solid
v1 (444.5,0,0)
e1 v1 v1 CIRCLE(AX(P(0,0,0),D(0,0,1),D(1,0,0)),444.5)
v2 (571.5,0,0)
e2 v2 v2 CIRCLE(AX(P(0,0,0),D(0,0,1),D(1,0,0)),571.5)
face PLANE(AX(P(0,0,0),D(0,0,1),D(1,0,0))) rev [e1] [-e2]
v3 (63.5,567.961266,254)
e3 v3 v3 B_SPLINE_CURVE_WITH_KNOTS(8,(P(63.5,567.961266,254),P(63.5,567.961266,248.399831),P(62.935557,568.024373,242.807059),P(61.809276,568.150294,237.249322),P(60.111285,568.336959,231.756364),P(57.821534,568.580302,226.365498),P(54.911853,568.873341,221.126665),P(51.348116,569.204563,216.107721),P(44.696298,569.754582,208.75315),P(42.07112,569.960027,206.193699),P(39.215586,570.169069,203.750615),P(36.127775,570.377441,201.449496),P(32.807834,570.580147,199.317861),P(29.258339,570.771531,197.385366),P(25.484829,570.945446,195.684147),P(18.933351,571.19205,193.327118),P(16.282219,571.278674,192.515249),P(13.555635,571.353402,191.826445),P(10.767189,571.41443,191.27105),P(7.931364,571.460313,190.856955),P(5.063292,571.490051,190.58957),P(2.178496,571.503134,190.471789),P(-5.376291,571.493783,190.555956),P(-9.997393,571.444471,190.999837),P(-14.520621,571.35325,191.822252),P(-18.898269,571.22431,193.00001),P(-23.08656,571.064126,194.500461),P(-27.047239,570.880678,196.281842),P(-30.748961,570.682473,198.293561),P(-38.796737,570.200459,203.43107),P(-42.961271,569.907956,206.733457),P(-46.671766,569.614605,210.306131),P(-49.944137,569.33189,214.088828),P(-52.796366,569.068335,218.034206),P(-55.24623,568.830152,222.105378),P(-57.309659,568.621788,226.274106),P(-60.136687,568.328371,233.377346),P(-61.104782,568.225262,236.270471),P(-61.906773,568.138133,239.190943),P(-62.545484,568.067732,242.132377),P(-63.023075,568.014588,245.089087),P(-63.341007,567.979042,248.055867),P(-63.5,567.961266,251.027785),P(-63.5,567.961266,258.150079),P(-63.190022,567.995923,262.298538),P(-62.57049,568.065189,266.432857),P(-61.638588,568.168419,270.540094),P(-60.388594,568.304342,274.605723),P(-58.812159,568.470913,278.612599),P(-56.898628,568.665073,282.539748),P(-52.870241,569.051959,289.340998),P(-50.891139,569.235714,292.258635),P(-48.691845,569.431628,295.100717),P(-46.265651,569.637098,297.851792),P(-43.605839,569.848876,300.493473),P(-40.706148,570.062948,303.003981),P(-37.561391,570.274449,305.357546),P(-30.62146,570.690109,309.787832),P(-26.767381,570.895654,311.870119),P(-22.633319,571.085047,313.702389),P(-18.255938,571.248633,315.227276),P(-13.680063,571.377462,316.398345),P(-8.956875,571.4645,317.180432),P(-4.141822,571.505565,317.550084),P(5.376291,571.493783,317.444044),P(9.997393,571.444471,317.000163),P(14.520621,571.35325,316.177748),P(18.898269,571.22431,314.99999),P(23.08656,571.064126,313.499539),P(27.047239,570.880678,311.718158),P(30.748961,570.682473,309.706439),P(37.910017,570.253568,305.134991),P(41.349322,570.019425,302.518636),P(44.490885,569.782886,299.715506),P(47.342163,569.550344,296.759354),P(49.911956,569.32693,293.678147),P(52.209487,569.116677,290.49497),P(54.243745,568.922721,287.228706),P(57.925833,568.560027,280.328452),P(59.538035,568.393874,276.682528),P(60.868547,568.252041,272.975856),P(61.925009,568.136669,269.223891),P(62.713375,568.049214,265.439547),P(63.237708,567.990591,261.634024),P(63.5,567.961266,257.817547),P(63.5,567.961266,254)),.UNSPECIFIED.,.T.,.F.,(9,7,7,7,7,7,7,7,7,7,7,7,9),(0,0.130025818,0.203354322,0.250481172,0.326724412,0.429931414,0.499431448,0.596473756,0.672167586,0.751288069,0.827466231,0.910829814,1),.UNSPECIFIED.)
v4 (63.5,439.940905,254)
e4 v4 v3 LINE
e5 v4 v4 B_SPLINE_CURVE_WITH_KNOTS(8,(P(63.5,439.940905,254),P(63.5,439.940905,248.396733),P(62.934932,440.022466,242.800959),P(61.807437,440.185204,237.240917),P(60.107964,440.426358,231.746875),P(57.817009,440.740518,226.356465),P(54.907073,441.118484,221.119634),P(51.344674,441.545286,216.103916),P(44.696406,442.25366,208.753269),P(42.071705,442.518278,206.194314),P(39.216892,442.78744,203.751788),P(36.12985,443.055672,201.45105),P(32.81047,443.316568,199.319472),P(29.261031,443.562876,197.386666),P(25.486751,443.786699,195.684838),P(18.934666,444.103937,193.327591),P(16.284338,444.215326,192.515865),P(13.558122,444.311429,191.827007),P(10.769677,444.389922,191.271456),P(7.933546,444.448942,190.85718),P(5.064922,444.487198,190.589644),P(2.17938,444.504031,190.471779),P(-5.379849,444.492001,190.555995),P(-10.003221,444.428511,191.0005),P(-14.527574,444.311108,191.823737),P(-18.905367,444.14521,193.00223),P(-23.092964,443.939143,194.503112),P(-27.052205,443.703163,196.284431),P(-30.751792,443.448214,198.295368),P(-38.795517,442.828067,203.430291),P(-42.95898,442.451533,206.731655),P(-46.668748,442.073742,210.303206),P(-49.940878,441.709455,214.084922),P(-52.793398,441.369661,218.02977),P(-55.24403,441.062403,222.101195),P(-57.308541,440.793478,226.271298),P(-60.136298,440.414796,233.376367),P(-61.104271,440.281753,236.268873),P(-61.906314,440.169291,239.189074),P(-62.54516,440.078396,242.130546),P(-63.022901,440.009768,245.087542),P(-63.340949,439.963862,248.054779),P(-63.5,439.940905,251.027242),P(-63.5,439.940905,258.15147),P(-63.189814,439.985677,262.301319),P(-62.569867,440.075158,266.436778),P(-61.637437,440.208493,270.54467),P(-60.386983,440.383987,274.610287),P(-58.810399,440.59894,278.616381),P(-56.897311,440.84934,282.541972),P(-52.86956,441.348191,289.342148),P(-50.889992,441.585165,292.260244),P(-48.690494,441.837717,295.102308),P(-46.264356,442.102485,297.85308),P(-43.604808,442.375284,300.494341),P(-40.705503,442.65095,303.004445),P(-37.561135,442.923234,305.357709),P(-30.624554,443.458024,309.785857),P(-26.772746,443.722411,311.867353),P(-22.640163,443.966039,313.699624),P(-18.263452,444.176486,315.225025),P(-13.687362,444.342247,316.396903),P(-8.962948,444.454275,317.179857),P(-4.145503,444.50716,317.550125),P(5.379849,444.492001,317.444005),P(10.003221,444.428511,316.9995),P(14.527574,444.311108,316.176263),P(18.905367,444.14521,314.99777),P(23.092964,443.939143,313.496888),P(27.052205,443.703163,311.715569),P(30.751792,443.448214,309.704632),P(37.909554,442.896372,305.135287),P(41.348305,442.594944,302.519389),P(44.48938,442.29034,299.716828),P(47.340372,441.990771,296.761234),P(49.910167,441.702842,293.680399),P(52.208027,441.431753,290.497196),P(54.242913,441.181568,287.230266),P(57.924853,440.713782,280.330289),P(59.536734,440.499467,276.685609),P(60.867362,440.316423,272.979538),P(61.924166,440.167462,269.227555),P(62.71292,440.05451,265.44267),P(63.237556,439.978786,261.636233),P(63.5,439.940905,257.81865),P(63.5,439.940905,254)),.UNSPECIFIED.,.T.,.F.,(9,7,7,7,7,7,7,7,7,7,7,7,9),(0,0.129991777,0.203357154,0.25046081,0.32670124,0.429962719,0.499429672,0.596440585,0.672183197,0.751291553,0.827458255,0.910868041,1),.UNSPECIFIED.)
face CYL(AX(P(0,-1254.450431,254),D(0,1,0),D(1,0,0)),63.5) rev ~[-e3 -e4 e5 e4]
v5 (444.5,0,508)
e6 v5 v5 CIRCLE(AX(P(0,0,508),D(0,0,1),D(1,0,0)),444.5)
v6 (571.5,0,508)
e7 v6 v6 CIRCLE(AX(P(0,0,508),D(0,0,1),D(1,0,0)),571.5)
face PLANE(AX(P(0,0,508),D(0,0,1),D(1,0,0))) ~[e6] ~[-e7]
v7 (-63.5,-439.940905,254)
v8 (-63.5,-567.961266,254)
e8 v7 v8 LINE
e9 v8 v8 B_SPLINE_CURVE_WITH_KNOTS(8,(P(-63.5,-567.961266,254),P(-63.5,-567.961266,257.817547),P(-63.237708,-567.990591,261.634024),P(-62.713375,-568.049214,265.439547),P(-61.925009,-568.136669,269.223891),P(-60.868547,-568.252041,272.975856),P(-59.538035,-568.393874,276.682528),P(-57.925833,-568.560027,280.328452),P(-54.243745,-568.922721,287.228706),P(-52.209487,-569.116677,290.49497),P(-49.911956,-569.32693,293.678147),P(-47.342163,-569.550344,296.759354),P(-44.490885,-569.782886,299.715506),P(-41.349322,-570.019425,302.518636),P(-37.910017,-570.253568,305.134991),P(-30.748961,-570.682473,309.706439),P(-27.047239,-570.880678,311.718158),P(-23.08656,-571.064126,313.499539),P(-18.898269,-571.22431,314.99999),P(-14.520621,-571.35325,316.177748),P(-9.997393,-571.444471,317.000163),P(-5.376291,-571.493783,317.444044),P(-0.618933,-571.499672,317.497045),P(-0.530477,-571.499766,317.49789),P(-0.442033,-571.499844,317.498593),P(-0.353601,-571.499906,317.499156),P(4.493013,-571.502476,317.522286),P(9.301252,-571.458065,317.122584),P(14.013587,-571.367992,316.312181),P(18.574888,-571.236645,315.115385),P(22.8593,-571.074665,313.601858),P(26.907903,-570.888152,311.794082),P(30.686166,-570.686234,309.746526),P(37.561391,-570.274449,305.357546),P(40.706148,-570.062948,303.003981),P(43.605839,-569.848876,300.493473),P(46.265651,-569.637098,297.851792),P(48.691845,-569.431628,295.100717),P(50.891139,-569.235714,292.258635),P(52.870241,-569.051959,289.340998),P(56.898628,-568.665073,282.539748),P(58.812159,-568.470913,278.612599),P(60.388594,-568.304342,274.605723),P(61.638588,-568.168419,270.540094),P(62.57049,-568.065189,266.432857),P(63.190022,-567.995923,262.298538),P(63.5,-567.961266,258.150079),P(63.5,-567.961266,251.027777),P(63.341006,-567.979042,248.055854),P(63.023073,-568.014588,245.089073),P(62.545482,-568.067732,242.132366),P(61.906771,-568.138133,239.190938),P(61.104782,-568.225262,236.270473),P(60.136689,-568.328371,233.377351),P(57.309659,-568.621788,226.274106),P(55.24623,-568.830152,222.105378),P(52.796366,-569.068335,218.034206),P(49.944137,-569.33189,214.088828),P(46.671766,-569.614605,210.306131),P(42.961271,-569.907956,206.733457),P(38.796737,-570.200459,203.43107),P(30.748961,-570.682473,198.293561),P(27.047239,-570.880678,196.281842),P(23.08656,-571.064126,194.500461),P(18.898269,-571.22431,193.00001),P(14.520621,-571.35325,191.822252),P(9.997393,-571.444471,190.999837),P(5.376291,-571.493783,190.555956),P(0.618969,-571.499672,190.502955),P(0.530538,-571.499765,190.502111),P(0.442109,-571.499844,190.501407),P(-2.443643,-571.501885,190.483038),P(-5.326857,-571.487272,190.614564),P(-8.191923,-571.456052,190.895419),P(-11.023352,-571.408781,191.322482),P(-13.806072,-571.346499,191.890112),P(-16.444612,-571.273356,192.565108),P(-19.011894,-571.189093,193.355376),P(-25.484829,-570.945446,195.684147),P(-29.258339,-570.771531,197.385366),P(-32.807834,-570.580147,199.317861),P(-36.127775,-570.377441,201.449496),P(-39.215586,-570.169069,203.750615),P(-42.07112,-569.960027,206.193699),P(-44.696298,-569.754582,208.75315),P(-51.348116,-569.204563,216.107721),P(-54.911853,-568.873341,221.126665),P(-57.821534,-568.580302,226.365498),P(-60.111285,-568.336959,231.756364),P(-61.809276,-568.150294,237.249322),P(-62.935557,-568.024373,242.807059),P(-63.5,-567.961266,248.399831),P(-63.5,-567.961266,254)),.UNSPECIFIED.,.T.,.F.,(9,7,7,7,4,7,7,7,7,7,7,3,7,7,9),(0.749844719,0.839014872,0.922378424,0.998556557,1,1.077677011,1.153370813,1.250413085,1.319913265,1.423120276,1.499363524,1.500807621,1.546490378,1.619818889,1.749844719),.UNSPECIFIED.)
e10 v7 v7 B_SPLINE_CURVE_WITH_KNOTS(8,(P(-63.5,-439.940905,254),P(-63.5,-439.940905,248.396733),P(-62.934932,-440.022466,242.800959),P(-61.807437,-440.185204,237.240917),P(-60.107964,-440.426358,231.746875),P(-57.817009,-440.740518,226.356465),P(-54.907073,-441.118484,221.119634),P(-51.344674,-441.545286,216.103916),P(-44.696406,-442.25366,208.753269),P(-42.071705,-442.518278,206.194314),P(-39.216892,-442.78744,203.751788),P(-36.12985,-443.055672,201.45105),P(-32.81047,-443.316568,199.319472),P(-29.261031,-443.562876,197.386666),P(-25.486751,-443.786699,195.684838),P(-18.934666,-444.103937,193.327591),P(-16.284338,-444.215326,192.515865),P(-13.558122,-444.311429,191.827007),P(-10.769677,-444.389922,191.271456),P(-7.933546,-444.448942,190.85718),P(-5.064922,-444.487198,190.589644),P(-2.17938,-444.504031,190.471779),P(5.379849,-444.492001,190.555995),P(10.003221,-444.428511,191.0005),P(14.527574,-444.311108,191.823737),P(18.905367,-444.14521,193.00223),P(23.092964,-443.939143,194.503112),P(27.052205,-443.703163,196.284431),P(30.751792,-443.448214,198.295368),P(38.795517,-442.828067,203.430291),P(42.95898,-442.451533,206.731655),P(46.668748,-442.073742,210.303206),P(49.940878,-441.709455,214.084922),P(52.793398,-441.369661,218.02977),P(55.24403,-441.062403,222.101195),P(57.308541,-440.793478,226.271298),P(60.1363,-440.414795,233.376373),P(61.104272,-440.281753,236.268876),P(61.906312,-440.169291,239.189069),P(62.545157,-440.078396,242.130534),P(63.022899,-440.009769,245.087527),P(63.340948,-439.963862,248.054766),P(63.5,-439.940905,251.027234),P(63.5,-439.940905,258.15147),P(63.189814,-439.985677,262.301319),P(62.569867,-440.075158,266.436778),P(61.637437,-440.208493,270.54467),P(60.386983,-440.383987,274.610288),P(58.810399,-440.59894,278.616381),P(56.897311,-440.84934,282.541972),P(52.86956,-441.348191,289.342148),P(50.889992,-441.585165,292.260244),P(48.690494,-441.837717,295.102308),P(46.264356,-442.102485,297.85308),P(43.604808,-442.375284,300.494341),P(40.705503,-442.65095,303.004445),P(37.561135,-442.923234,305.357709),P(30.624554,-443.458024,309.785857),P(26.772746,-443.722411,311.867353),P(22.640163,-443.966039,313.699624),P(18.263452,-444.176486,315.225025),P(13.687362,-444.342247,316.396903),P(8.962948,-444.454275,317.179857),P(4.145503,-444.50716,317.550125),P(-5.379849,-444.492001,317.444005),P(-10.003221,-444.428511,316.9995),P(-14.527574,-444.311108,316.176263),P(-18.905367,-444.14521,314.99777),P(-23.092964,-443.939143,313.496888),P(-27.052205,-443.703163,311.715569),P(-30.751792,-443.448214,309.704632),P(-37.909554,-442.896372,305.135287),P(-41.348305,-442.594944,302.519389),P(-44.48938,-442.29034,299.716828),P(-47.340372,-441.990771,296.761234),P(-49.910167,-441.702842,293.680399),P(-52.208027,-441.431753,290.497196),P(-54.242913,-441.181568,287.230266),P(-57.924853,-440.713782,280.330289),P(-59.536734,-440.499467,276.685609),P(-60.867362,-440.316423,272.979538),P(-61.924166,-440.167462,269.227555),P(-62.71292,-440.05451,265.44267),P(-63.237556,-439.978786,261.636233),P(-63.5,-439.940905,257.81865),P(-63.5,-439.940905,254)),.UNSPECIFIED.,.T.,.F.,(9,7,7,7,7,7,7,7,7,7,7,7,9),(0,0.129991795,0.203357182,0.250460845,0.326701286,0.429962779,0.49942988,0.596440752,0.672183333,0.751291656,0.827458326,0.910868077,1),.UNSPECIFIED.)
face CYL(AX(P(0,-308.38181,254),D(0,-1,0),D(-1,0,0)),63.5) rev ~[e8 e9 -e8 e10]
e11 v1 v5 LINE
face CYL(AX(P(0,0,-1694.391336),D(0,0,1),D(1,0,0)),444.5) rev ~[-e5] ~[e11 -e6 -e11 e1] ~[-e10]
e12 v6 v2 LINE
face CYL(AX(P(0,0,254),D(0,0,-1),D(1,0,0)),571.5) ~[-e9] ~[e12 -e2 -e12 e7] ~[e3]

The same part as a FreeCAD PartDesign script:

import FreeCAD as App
import Part
import Sketcher

V = App.Vector
Q = App.Units.Quantity


def add_polygon(sketch, points):
    """Adds a closed chain of lines whose ends are joined by coincident constraints."""
    first, n = sketch.GeometryCount, len(points)
    for a, b in zip(points, points[1:] + points[:1]):
        sketch.addGeometry(Part.LineSegment(App.Vector(*a, 0), App.Vector(*b, 0)), False)
    for i in range(n):
        sketch.addConstraint(Sketcher.Constraint("Coincident", first + i, 2, first + (i + 1) % n, 1))

doc = App.newDocument("Part")
body = doc.addObject("PartDesign::Body", "Body")

# Sketch on XZ plane
sketch1 = doc.addObject("Sketcher::SketchObject", "Sketch")
body.addObject(sketch1)
sketch1.AttachmentSupport = (doc.XZ_Plane, [""])
sketch1.MapMode = "FlatFace"
add_polygon(sketch1, [(0, 0), (0, 508), (572, 508), (572, 0)])  # lines 0-3
sketch1.addConstraint(Sketcher.Constraint("Vertical", 0))
sketch1.addConstraint(Sketcher.Constraint("Horizontal", 1))
sketch1.addConstraint(Sketcher.Constraint("Vertical", 2))
sketch1.addConstraint(Sketcher.Constraint("Horizontal", 3))
sketch1.addConstraint(Sketcher.Constraint("Coincident", 3, 2, -1, 1))
sketch1.addConstraint(Sketcher.Constraint("DistanceY", 0, 1, 0, 2, Q("20 in")))
sketch1.addConstraint(Sketcher.Constraint("DistanceX", 1, 1, 1, 2, Q("22.5 in")))
revolution = doc.addObject("PartDesign::Revolution", "Revolution")
body.addObject(revolution)
revolution.Profile = sketch1
revolution.ReferenceAxis = (sketch1, ["V_Axis"])
revolution.Angle = 360

# Sketch on XY plane
sketch2 = doc.addObject("Sketcher::SketchObject", "Sketch001")
body.addObject(sketch2)
sketch2.AttachmentSupport = (doc.XY_Plane, [""])
sketch2.MapMode = "FlatFace"
sketch2.addGeometry(Part.Circle(V(0, 0, 0), V(0, 0, 1), 444), False)
sketch2.addConstraint(Sketcher.Constraint("Coincident", 0, 3, -1, 1))
sketch2.addConstraint(Sketcher.Constraint("Diameter", 0, Q("35 in")))
doc.recompute()
hole = doc.addObject("PartDesign::Hole", "Hole")
body.addObject(hole)
hole.Profile = sketch2
hole.ThreadType = "None"
hole.Diameter = Q("35 in")
hole.DepthType = "ThroughAll"
hole.Reversed = True

# Sketch on XZ plane
sketch3 = doc.addObject("Sketcher::SketchObject", "Sketch002")
body.addObject(sketch3)
sketch3.AttachmentSupport = (doc.XZ_Plane, [""])
sketch3.MapMode = "FlatFace"
sketch3.AttachmentOffset = App.Placement(V(0, 0, 439.940905), App.Rotation())
sketch3.addGeometry(Part.Circle(V(0, 254, 0), V(0, 0, 1), 64), False)
sketch3.addConstraint(Sketcher.Constraint("PointOnObject", 0, 3, -2))
sketch3.addConstraint(Sketcher.Constraint("Diameter", 0, Q("5 in")))
sketch3.addConstraint(Sketcher.Constraint("DistanceY", -1, 1, 0, 3, Q("10 in")))
doc.recompute()
hole2 = doc.addObject("PartDesign::Hole", "Hole001")
body.addObject(hole2)
hole2.Profile = sketch3
hole2.ThreadType = "None"
hole2.Diameter = Q("5 in")
hole2.DepthType = "Dimension"
hole2.Depth = 131.559095
hole2.DrillPoint = "Flat"
hole2.Reversed = True

# Sketch on XZ plane
sketch4 = doc.addObject("Sketcher::SketchObject", "Sketch003")
body.addObject(sketch4)
sketch4.AttachmentSupport = (doc.XZ_Plane, [""])
sketch4.MapMode = "FlatFace"
sketch4.AttachmentOffset = App.Placement(V(0, 0, -439.940905), App.Rotation())
sketch4.addGeometry(Part.Circle(V(0, 254, 0), V(0, 0, 1), 64), False)
sketch4.addConstraint(Sketcher.Constraint("PointOnObject", 0, 3, -2))
sketch4.addConstraint(Sketcher.Constraint("Diameter", 0, Q("5 in")))
sketch4.addConstraint(Sketcher.Constraint("DistanceY", -1, 1, 0, 3, Q("10 in")))
doc.recompute()
hole3 = doc.addObject("PartDesign::Hole", "Hole002")
body.addObject(hole3)
hole3.Profile = sketch4
hole3.ThreadType = "None"
hole3.Diameter = Q("5 in")
hole3.DepthType = "ThroughAll"

doc.recompute()
